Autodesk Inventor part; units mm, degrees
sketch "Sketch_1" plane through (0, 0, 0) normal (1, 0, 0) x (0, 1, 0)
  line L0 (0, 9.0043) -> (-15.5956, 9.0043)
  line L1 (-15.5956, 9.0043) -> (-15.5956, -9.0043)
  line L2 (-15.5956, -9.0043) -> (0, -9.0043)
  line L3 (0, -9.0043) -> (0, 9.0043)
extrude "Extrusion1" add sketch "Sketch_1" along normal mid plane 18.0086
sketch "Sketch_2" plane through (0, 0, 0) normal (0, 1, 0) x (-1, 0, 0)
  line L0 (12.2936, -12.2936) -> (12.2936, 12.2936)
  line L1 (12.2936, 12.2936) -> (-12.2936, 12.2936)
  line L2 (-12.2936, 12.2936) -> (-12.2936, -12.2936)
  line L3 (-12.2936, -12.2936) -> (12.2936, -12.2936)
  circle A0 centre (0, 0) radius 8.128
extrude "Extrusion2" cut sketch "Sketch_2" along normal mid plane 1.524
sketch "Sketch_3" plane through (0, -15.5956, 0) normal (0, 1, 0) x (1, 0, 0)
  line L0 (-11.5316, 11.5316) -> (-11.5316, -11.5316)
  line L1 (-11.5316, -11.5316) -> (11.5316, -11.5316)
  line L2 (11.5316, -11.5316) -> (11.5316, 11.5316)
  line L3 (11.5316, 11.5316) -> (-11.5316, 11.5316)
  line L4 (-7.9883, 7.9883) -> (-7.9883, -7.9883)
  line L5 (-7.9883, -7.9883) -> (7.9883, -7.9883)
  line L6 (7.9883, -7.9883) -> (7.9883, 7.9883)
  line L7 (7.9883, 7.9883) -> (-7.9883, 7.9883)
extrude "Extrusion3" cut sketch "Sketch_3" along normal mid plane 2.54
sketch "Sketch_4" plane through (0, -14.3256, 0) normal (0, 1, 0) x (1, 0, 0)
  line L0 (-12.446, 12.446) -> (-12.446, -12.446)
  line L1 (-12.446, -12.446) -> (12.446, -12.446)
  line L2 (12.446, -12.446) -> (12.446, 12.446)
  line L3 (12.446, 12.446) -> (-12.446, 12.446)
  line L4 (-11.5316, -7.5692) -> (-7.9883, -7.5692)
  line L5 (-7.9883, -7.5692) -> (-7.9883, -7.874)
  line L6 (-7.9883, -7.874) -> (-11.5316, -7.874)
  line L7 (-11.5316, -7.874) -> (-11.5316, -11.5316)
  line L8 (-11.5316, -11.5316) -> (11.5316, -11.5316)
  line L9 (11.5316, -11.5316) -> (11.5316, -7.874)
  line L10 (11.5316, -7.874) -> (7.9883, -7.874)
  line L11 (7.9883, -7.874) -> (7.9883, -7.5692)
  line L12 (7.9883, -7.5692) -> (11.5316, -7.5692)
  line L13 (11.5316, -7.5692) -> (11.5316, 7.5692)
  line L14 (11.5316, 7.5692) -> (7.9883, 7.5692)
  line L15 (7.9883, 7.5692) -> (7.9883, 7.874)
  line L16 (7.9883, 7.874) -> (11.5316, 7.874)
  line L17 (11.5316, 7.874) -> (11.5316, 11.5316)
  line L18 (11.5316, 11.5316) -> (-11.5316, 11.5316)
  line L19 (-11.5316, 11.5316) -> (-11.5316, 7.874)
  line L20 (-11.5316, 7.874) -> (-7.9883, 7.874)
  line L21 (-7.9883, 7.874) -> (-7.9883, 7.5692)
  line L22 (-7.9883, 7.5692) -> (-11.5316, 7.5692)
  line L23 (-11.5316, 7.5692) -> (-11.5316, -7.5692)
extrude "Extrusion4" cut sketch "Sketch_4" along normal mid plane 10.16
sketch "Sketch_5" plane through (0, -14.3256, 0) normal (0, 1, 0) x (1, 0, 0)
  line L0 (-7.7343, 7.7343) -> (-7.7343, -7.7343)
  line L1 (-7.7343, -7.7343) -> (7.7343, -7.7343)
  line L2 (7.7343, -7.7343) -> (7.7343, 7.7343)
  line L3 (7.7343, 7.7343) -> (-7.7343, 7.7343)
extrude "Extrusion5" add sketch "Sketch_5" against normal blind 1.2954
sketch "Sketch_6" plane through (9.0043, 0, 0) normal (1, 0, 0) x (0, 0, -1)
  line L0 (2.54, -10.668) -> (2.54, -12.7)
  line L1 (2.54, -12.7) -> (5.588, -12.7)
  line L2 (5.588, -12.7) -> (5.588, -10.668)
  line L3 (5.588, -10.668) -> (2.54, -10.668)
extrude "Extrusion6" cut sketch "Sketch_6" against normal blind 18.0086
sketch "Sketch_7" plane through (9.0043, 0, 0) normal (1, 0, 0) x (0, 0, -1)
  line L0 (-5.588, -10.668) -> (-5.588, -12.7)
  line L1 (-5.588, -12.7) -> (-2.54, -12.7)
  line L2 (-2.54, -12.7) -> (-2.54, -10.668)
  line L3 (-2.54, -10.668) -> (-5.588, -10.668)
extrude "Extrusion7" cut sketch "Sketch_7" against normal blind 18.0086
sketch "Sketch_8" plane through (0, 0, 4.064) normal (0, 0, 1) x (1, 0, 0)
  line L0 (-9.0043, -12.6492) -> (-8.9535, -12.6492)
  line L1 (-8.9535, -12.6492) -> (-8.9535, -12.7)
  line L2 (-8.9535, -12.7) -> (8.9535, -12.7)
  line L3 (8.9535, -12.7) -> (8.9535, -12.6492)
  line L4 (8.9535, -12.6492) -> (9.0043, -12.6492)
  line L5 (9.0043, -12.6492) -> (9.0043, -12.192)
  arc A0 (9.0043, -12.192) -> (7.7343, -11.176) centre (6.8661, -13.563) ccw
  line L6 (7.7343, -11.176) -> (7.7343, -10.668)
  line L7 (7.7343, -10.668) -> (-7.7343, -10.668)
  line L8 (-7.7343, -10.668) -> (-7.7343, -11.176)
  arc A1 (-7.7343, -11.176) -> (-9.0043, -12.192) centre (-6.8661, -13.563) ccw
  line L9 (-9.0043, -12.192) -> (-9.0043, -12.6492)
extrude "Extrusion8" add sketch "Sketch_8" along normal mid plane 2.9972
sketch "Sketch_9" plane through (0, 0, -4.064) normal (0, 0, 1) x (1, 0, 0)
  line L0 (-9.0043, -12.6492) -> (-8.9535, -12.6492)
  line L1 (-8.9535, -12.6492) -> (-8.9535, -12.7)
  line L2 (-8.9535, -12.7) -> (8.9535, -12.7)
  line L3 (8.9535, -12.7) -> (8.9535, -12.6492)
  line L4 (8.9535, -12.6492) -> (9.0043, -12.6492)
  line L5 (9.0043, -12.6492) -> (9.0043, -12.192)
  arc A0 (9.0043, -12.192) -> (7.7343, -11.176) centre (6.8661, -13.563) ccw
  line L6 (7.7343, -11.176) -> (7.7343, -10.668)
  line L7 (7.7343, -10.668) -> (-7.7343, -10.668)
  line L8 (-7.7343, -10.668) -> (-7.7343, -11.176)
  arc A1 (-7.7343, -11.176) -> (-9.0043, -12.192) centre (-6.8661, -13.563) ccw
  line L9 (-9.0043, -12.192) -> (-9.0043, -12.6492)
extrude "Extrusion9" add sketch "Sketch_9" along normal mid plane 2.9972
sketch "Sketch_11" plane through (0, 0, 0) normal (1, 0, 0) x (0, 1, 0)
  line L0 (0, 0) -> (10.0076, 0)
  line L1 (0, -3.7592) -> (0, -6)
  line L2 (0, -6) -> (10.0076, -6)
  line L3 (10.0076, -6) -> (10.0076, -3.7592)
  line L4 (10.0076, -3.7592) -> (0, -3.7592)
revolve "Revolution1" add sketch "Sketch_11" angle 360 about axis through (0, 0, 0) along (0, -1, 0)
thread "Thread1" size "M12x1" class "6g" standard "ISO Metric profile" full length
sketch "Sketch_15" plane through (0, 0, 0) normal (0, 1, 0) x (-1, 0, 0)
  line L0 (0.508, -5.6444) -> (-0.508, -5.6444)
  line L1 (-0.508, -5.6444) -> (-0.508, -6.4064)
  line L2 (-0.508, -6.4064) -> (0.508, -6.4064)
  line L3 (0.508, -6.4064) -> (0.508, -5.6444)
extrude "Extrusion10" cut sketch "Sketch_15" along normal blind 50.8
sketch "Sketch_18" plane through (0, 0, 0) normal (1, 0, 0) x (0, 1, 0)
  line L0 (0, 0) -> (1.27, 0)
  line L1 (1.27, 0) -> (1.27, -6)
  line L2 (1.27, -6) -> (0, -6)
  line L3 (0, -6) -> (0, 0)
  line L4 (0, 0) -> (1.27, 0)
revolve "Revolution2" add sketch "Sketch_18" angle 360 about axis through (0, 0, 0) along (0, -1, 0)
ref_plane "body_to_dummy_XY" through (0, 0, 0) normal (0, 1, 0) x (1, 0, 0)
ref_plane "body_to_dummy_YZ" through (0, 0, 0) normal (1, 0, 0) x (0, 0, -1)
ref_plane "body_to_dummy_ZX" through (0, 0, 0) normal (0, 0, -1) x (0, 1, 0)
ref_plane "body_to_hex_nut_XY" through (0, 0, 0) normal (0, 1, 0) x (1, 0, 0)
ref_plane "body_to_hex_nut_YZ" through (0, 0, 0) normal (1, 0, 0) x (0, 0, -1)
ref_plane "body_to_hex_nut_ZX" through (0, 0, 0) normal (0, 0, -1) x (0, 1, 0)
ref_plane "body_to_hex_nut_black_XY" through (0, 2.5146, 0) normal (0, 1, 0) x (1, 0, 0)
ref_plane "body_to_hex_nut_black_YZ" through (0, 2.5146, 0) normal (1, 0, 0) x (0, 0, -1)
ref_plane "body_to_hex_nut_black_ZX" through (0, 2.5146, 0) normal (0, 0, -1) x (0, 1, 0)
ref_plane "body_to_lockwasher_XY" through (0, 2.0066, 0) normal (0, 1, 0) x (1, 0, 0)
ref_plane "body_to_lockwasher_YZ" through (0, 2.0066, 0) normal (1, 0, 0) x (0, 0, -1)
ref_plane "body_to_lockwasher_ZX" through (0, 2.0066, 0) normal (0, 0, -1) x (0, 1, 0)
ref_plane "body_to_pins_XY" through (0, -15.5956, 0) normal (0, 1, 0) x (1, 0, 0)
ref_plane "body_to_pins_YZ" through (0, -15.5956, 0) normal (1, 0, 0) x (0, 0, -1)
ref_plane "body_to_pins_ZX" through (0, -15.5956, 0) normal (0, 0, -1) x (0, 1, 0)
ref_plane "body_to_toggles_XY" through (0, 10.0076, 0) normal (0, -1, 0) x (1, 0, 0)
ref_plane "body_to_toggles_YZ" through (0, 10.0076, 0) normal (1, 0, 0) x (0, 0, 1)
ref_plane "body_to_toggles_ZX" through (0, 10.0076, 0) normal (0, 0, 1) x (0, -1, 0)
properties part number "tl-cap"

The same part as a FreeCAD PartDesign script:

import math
import FreeCAD as App
import Part
import Sketcher
from FreeCAD import Vector
Q = App.Units.Quantity


def add_polygon(sketch, points):
    """Adds a closed chain of lines whose ends are joined by coincident constraints."""
    first, n = sketch.GeometryCount, len(points)
    for a, b in zip(points, points[1:] + points[:1]):
        sketch.addGeometry(Part.LineSegment(App.Vector(*a, 0), App.Vector(*b, 0)), False)
    for i in range(n):
        sketch.addConstraint(Sketcher.Constraint("Coincident", first + i, 2, first + (i + 1) % n, 1))

doc = App.newDocument("Part")
body = doc.addObject("PartDesign::Body", "Body")

sketch1 = body.newObject("Sketcher::SketchObject", "Sketch")
sketch1.AttachmentSupport = (doc.getObject("YZ_Plane"), [""])
sketch1.MapMode = "FlatFace"
add_polygon(sketch1, [(0, -9), (0, 9), (-16, 9), (-16, -9)])
sketch1.addConstraint(Sketcher.Constraint("Vertical", 0))
sketch1.addConstraint(Sketcher.Constraint("Horizontal", 1))
sketch1.addConstraint(Sketcher.Constraint("Vertical", 2))
sketch1.addConstraint(Sketcher.Constraint("Horizontal", 3))
sketch1.addConstraint(Sketcher.Constraint("Symmetric", 0, 2, 3, 2, -1, 1))
sketch1.addConstraint(Sketcher.Constraint("DistanceX", 1, 2, 1, 1, Q("0.614 in")))
sketch1.addConstraint(Sketcher.Constraint("DistanceY", 0, 1, 0, 2, Q("0.709 in")))
pad1 = body.newObject("PartDesign::Pad", "Pad")
pad1.Profile = sketch1
pad1.Length = Q("0.709 in")
pad1.Midplane = True

sketch2 = body.newObject("Sketcher::SketchObject", "Sketch001")
sketch2.AttachmentSupport = (doc.getObject("XZ_Plane"), [""])
sketch2.MapMode = "FlatFace"
add_polygon(sketch2, [(12, -12), (-12, -12), (-12, 12), (12, 12)])
sketch2.addGeometry(Part.Circle(Vector(0, 0, 0), Vector(0, 0, 1), 8), False)
sketch2.addConstraint(Sketcher.Constraint("Horizontal", 0))
sketch2.addConstraint(Sketcher.Constraint("Vertical", 1))
sketch2.addConstraint(Sketcher.Constraint("Horizontal", 2))
sketch2.addConstraint(Sketcher.Constraint("Vertical", 3))
sketch2.addConstraint(Sketcher.Constraint("Coincident", 4, 3, -1, 1))
sketch2.addConstraint(Sketcher.Constraint("Symmetric", 0, 2, 2, 2, -1, 1))
sketch2.addConstraint(Sketcher.Constraint("Equal", 2, 1))
sketch2.addConstraint(Sketcher.Constraint("Diameter", 4, Q("0.64 in")))
sketch2.addConstraint(Sketcher.Constraint("DistanceX", 0, 2, 0, 1, Q("0.968 in")))
pocket1 = body.newObject("PartDesign::Pocket", "Pocket")
pocket1.Profile = sketch2
pocket1.Length = Q("0.06 in")
pocket1.Midplane = True

sketch3 = body.newObject("Sketcher::SketchObject", "Sketch002")
sketch3.AttachmentSupport = (doc.getObject("XZ_Plane"), [""])
sketch3.MapMode = "FlatFace"
sketch3.AttachmentOffset = App.Placement(Vector(0, 0, 0.614 * 25.4), App.Rotation())
add_polygon(sketch3, [(12, -12), (-12, -12), (-12, 12), (12, 12)])
add_polygon(sketch3, [(-8, 8), (-8, -8), (8, -8), (8, 8)])
sketch3.addConstraint(Sketcher.Constraint("Horizontal", 0))
sketch3.addConstraint(Sketcher.Constraint("Vertical", 1))
sketch3.addConstraint(Sketcher.Constraint("Horizontal", 2))
sketch3.addConstraint(Sketcher.Constraint("Vertical", 3))
sketch3.addConstraint(Sketcher.Constraint("Vertical", 4))
sketch3.addConstraint(Sketcher.Constraint("Horizontal", 5))
sketch3.addConstraint(Sketcher.Constraint("Vertical", 6))
sketch3.addConstraint(Sketcher.Constraint("Horizontal", 7))
sketch3.addConstraint(Sketcher.Constraint("Symmetric", 0, 2, 2, 2, -1, 1))
sketch3.addConstraint(Sketcher.Constraint("Symmetric", 4, 2, 6, 2, -1, 1))
sketch3.addConstraint(Sketcher.Constraint("Equal", 2, 1))
sketch3.addConstraint(Sketcher.Constraint("Equal", 7, 4))
sketch3.addConstraint(Sketcher.Constraint("DistanceX", 0, 2, 0, 1, Q("0.908 in")))
sketch3.addConstraint(Sketcher.Constraint("DistanceX", 5, 1, 5, 2, Q("0.629 in")))
pocket2 = body.newObject("PartDesign::Pocket", "Pocket001")
pocket2.Profile = sketch3
pocket2.Length = Q("0.1 in")
pocket2.Midplane = True

sketch4 = body.newObject("Sketcher::SketchObject", "Sketch003")
sketch4.AttachmentSupport = (doc.getObject("XZ_Plane"), [""])
sketch4.MapMode = "FlatFace"
sketch4.AttachmentOffset = App.Placement(Vector(0, 0, 0.564 * 25.4), App.Rotation())
add_polygon(sketch4, [(12.45, -12.45), (-12.45, -12.45), (-12.45, 12.45), (12.45, 12.45)])
add_polygon(sketch4, [(-7.99, 7.57), (-11.53, 7.57), (-11.53, -7.57), (-7.99, -7.57), (-7.99, -7.87), (-11.53, -7.87), (-11.53, -11.53), (11.53, -11.53), (11.53, -7.87), (7.99, -7.87), (7.99, -7.57), (11.53, -7.57), (11.53, 7.57), (7.99, 7.57), (7.99, 7.87), (11.53, 7.87), (11.53, 11.53), (-11.53, 11.53), (-11.53, 7.87), (-7.99, 7.87)])
sketch4.addConstraint(Sketcher.Constraint("Horizontal", 0))
sketch4.addConstraint(Sketcher.Constraint("Vertical", 1))
sketch4.addConstraint(Sketcher.Constraint("Horizontal", 2))
sketch4.addConstraint(Sketcher.Constraint("Vertical", 3))
sketch4.addConstraint(Sketcher.Constraint("Horizontal", 4))
sketch4.addConstraint(Sketcher.Constraint("Vertical", 5))
sketch4.addConstraint(Sketcher.Constraint("Horizontal", 6))
sketch4.addConstraint(Sketcher.Constraint("Vertical", 7))
sketch4.addConstraint(Sketcher.Constraint("Horizontal", 8))
sketch4.addConstraint(Sketcher.Constraint("Vertical", 9))
sketch4.addConstraint(Sketcher.Constraint("Horizontal", 10))
sketch4.addConstraint(Sketcher.Constraint("Vertical", 11))
sketch4.addConstraint(Sketcher.Constraint("Horizontal", 12))
sketch4.addConstraint(Sketcher.Constraint("Vertical", 13))
sketch4.addConstraint(Sketcher.Constraint("Horizontal", 14))
sketch4.addConstraint(Sketcher.Constraint("Vertical", 15))
sketch4.addConstraint(Sketcher.Constraint("Horizontal", 16))
sketch4.addConstraint(Sketcher.Constraint("Vertical", 17))
sketch4.addConstraint(Sketcher.Constraint("Horizontal", 18))
sketch4.addConstraint(Sketcher.Constraint("Vertical", 19))
sketch4.addConstraint(Sketcher.Constraint("Horizontal", 20))
sketch4.addConstraint(Sketcher.Constraint("Vertical", 21))
sketch4.addConstraint(Sketcher.Constraint("Horizontal", 22))
sketch4.addConstraint(Sketcher.Constraint("Vertical", 23))
sketch4.addConstraint(Sketcher.Constraint("Symmetric", 0, 2, 2, 2, -1, 1))
sketch4.addConstraint(Sketcher.Constraint("Symmetric", 4, 2, 14, 2, -1, 1))
sketch4.addConstraint(Sketcher.Constraint("Symmetric", 6, 2, 16, 2, -1, 1))
sketch4.addConstraint(Sketcher.Constraint("Symmetric", 8, 2, 18, 2, -1, 1))
sketch4.addConstraint(Sketcher.Constraint("Symmetric", 10, 2, 20, 2, -1, 1))
sketch4.addConstraint(Sketcher.Constraint("Symmetric", 12, 2, 22, 2, -1, 1))
sketch4.addConstraint(Sketcher.Constraint("Symmetric", 8, 2, 11, 2, -2))
sketch4.addConstraint(Sketcher.Constraint("Symmetric", 6, 2, 13, 2, -2))
sketch4.addConstraint(Sketcher.Constraint("Vertical", 5, 2, 8, 2))
sketch4.addConstraint(Sketcher.Constraint("Equal", 2, 1))
sketch4.addConstraint(Sketcher.Constraint("DistanceX", 0, 2, 0, 1, Q("0.98 in")))
sketch4.addConstraint(Sketcher.Constraint("DistanceY", 7, 2, 1, 2, Q("0.8 in")))
sketch4.addConstraint(Sketcher.Constraint("DistanceX", 10, 1, 10, 2, Q("0.908 in")))
sketch4.addConstraint(Sketcher.Constraint("DistanceY", 5, 2, 5, 1, Q("0.596 in")))
sketch4.addConstraint(Sketcher.Constraint("DistanceY", 9, 2, 9, 1, Q("0.144 in")))
sketch4.addConstraint(Sketcher.Constraint("DistanceX", 4, 2, 4, 1, Q("0.1395 in")))
pocket3 = body.newObject("PartDesign::Pocket", "Pocket002")
pocket3.Profile = sketch4
pocket3.Length = Q("0.4 in")
pocket3.Midplane = True

sketch5 = body.newObject("Sketcher::SketchObject", "Sketch004")
sketch5.AttachmentSupport = (doc.getObject("XZ_Plane"), [""])
sketch5.MapMode = "FlatFace"
sketch5.AttachmentOffset = App.Placement(Vector(0, 0, 0.564 * 25.4), App.Rotation())
add_polygon(sketch5, [(8, -8), (-8, -8), (-8, 8), (8, 8)])
sketch5.addConstraint(Sketcher.Constraint("Horizontal", 0))
sketch5.addConstraint(Sketcher.Constraint("Vertical", 1))
sketch5.addConstraint(Sketcher.Constraint("Horizontal", 2))
sketch5.addConstraint(Sketcher.Constraint("Vertical", 3))
sketch5.addConstraint(Sketcher.Constraint("Symmetric", 0, 2, 2, 2, -1, 1))
sketch5.addConstraint(Sketcher.Constraint("Equal", 2, 1))
sketch5.addConstraint(Sketcher.Constraint("DistanceX", 0, 2, 0, 1, Q("0.609 in")))
pad2 = body.newObject("PartDesign::Pad", "Pad001")
pad2.Profile = sketch5
pad2.Length = Q("0.051 in")

sketch6 = body.newObject("Sketcher::SketchObject", "Sketch005")
sketch6.AttachmentSupport = (doc.getObject("YZ_Plane"), [""])
sketch6.MapMode = "FlatFace"
sketch6.AttachmentOffset = App.Placement(Vector(0, 0, 0.3545 * 25.4), App.Rotation())
add_polygon(sketch6, [(-10.7, -5.6), (-10.7, -2.5), (-12.7, -2.5), (-12.7, -5.6)])
sketch6.addConstraint(Sketcher.Constraint("Vertical", 0))
sketch6.addConstraint(Sketcher.Constraint("Horizontal", 1))
sketch6.addConstraint(Sketcher.Constraint("Vertical", 2))
sketch6.addConstraint(Sketcher.Constraint("Horizontal", 3))
sketch6.addConstraint(Sketcher.Constraint("DistanceX", 1, 2, 1, 1, Q("0.08 in")))
sketch6.addConstraint(Sketcher.Constraint("DistanceY", 0, 1, 0, 2, Q("0.12 in")))
sketch6.addConstraint(Sketcher.Constraint("DistanceY", 0, 2, -1, 1, Q("0.1 in")))
sketch6.addConstraint(Sketcher.Constraint("DistanceX", 1, 2, -1, 1, Q("0.5 in")))
pocket4 = body.newObject("PartDesign::Pocket", "Pocket003")
pocket4.Profile = sketch6
pocket4.Length = Q("0.709 in")

sketch7 = body.newObject("Sketcher::SketchObject", "Sketch006")
sketch7.AttachmentSupport = (doc.getObject("YZ_Plane"), [""])
sketch7.MapMode = "FlatFace"
sketch7.AttachmentOffset = App.Placement(Vector(0, 0, 0.3545 * 25.4), App.Rotation())
add_polygon(sketch7, [(-10.7, 2.5), (-10.7, 5.6), (-12.7, 5.6), (-12.7, 2.5)])
sketch7.addConstraint(Sketcher.Constraint("Vertical", 0))
sketch7.addConstraint(Sketcher.Constraint("Horizontal", 1))
sketch7.addConstraint(Sketcher.Constraint("Vertical", 2))
sketch7.addConstraint(Sketcher.Constraint("Horizontal", 3))
sketch7.addConstraint(Sketcher.Constraint("DistanceX", 1, 2, 1, 1, Q("0.08 in")))
sketch7.addConstraint(Sketcher.Constraint("DistanceY", 0, 1, 0, 2, Q("0.12 in")))
sketch7.addConstraint(Sketcher.Constraint("DistanceX", 1, 2, -1, 1, Q("0.5 in")))
sketch7.addConstraint(Sketcher.Constraint("DistanceY", -1, 1, 2, 2, Q("0.1 in")))
pocket5 = body.newObject("PartDesign::Pocket", "Pocket004")
pocket5.Profile = sketch7
pocket5.Length = Q("0.709 in")

sketch8 = body.newObject("Sketcher::SketchObject", "Sketch007")
sketch8.AttachmentSupport = (doc.getObject("XY_Plane"), [""])
sketch8.MapMode = "FlatFace"
sketch8.AttachmentOffset = App.Placement(Vector(0, 0, 0.16 * 25.4), App.Rotation())
sketch8.addGeometry(Part.LineSegment(Vector(-9, -12.19, 0), Vector(-9, -12.65, 0)), False)
sketch8.addGeometry(Part.LineSegment(Vector(-9, -12.65, 0), Vector(-8.95, -12.65, 0)), False)
sketch8.addGeometry(Part.LineSegment(Vector(-8.95, -12.65, 0), Vector(-8.95, -12.7, 0)), False)
sketch8.addGeometry(Part.LineSegment(Vector(-8.95, -12.7, 0), Vector(8.95, -12.7, 0)), False)
sketch8.addGeometry(Part.LineSegment(Vector(8.95, -12.7, 0), Vector(8.95, -12.65, 0)), False)
sketch8.addGeometry(Part.LineSegment(Vector(8.95, -12.65, 0), Vector(9, -12.65, 0)), False)
sketch8.addGeometry(Part.LineSegment(Vector(9, -12.65, 0), Vector(9, -12.19, 0)), False)
sketch8.addGeometry(Part.ArcOfCircle(Part.Circle(Vector(6.87, -13.56, 0), Vector(0, 0, 1), 2.54), math.radians(33), math.radians(70)), False)
sketch8.addGeometry(Part.LineSegment(Vector(7.73, -11.18, 0), Vector(7.73, -10.67, 0)), False)
sketch8.addGeometry(Part.LineSegment(Vector(7.73, -10.67, 0), Vector(-7.73, -10.67, 0)), False)
sketch8.addGeometry(Part.LineSegment(Vector(-7.73, -10.67, 0), Vector(-7.73, -11.18, 0)), False)
sketch8.addGeometry(Part.ArcOfCircle(Part.Circle(Vector(-6.87, -13.56, 0), Vector(0, 0, 1), 2.54), math.radians(110), math.radians(147)), False)
sketch8.addConstraint(Sketcher.Constraint("Coincident", 0, 2, 1, 1))
sketch8.addConstraint(Sketcher.Constraint("Coincident", 1, 2, 2, 1))
sketch8.addConstraint(Sketcher.Constraint("Coincident", 2, 2, 3, 1))
sketch8.addConstraint(Sketcher.Constraint("Coincident", 3, 2, 4, 1))
sketch8.addConstraint(Sketcher.Constraint("Coincident", 4, 2, 5, 1))
sketch8.addConstraint(Sketcher.Constraint("Coincident", 5, 2, 6, 1))
sketch8.addConstraint(Sketcher.Constraint("Coincident", 6, 2, 7, 1))
sketch8.addConstraint(Sketcher.Constraint("Coincident", 7, 2, 8, 1))
sketch8.addConstraint(Sketcher.Constraint("Coincident", 8, 2, 9, 1))
sketch8.addConstraint(Sketcher.Constraint("Coincident", 9, 2, 10, 1))
sketch8.addConstraint(Sketcher.Constraint("Coincident", 10, 2, 11, 1))
sketch8.addConstraint(Sketcher.Constraint("Coincident", 11, 2, 0, 1))
sketch8.addConstraint(Sketcher.Constraint("Vertical", 0))
sketch8.addConstraint(Sketcher.Constraint("Horizontal", 1))
sketch8.addConstraint(Sketcher.Constraint("Vertical", 2))
sketch8.addConstraint(Sketcher.Constraint("Horizontal", 3))
sketch8.addConstraint(Sketcher.Constraint("Vertical", 4))
sketch8.addConstraint(Sketcher.Constraint("Horizontal", 5))
sketch8.addConstraint(Sketcher.Constraint("Vertical", 6))
sketch8.addConstraint(Sketcher.Constraint("Vertical", 8))
sketch8.addConstraint(Sketcher.Constraint("Horizontal", 9))
sketch8.addConstraint(Sketcher.Constraint("Vertical", 10))
sketch8.addConstraint(Sketcher.Constraint("Equal", 7, 11))
sketch8.addConstraint(Sketcher.Constraint("Symmetric", 7, 3, 11, 3, -2))
sketch8.addConstraint(Sketcher.Constraint("Symmetric", 1, 2, 4, 2, -2))
sketch8.addConstraint(Sketcher.Constraint("Horizontal", 7, 2, 10, 2))
sketch8.addConstraint(Sketcher.Constraint("Horizontal", 6, 2, 11, 2))
sketch8.addConstraint(Sketcher.Constraint("Equal", 5, 2))
sketch8.addConstraint(Sketcher.Constraint("Radius", 7, Q("0.1 in")))
sketch8.addConstraint(Sketcher.Constraint("DistanceY", 8, 1, 8, 2, Q("0.02 in")))
sketch8.addConstraint(Sketcher.Constraint("DistanceY", 2, 2, -1, 1, Q("0.5 in")))
sketch8.addConstraint(Sketcher.Constraint("DistanceX", 1, 1, 1, 2, Q("0.002 in")))
sketch8.addConstraint(Sketcher.Constraint("DistanceX", 3, 1, 3, 2, Q("0.705 in")))
sketch8.addConstraint(Sketcher.Constraint("DistanceX", 9, 2, 9, 1, Q("0.609 in")))
sketch8.addConstraint(Sketcher.Constraint("DistanceY", 0, 2, 0, 1, Q("0.018 in")))
sketch8.addConstraint(Sketcher.Constraint("DistanceY", 7, 2, -1, 1, Q("0.44 in")))
pad3 = body.newObject("PartDesign::Pad", "Pad002")
pad3.Profile = sketch8
pad3.Length = Q("0.118 in")
pad3.Midplane = True

sketch9 = body.newObject("Sketcher::SketchObject", "Sketch008")
sketch9.AttachmentSupport = (doc.getObject("XY_Plane"), [""])
sketch9.MapMode = "FlatFace"
sketch9.AttachmentOffset = App.Placement(Vector(0, 0, -0.16 * 25.4), App.Rotation())
sketch9.addGeometry(Part.LineSegment(Vector(-9, -12.19, 0), Vector(-9, -12.65, 0)), False)
sketch9.addGeometry(Part.LineSegment(Vector(-9, -12.65, 0), Vector(-8.95, -12.65, 0)), False)
sketch9.addGeometry(Part.LineSegment(Vector(-8.95, -12.65, 0), Vector(-8.95, -12.7, 0)), False)
sketch9.addGeometry(Part.LineSegment(Vector(-8.95, -12.7, 0), Vector(8.95, -12.7, 0)), False)
sketch9.addGeometry(Part.LineSegment(Vector(8.95, -12.7, 0), Vector(8.95, -12.65, 0)), False)
sketch9.addGeometry(Part.LineSegment(Vector(8.95, -12.65, 0), Vector(9, -12.65, 0)), False)
sketch9.addGeometry(Part.LineSegment(Vector(9, -12.65, 0), Vector(9, -12.19, 0)), False)
sketch9.addGeometry(Part.ArcOfCircle(Part.Circle(Vector(6.87, -13.56, 0), Vector(0, 0, 1), 2.54), math.radians(33), math.radians(70)), False)
sketch9.addGeometry(Part.LineSegment(Vector(7.73, -11.18, 0), Vector(7.73, -10.67, 0)), False)
sketch9.addGeometry(Part.LineSegment(Vector(7.73, -10.67, 0), Vector(-7.73, -10.67, 0)), False)
sketch9.addGeometry(Part.LineSegment(Vector(-7.73, -10.67, 0), Vector(-7.73, -11.18, 0)), False)
sketch9.addGeometry(Part.ArcOfCircle(Part.Circle(Vector(-6.87, -13.56, 0), Vector(0, 0, 1), 2.54), math.radians(110), math.radians(147)), False)
sketch9.addConstraint(Sketcher.Constraint("Coincident", 0, 2, 1, 1))
sketch9.addConstraint(Sketcher.Constraint("Coincident", 1, 2, 2, 1))
sketch9.addConstraint(Sketcher.Constraint("Coincident", 2, 2, 3, 1))
sketch9.addConstraint(Sketcher.Constraint("Coincident", 3, 2, 4, 1))
sketch9.addConstraint(Sketcher.Constraint("Coincident", 4, 2, 5, 1))
sketch9.addConstraint(Sketcher.Constraint("Coincident", 5, 2, 6, 1))
sketch9.addConstraint(Sketcher.Constraint("Coincident", 6, 2, 7, 1))
sketch9.addConstraint(Sketcher.Constraint("Coincident", 7, 2, 8, 1))
sketch9.addConstraint(Sketcher.Constraint("Coincident", 8, 2, 9, 1))
sketch9.addConstraint(Sketcher.Constraint("Coincident", 9, 2, 10, 1))
sketch9.addConstraint(Sketcher.Constraint("Coincident", 10, 2, 11, 1))
sketch9.addConstraint(Sketcher.Constraint("Coincident", 11, 2, 0, 1))
sketch9.addConstraint(Sketcher.Constraint("Vertical", 0))
sketch9.addConstraint(Sketcher.Constraint("Horizontal", 1))
sketch9.addConstraint(Sketcher.Constraint("Vertical", 2))
sketch9.addConstraint(Sketcher.Constraint("Horizontal", 3))
sketch9.addConstraint(Sketcher.Constraint("Vertical", 4))
sketch9.addConstraint(Sketcher.Constraint("Horizontal", 5))
sketch9.addConstraint(Sketcher.Constraint("Vertical", 6))
sketch9.addConstraint(Sketcher.Constraint("Vertical", 8))
sketch9.addConstraint(Sketcher.Constraint("Horizontal", 9))
sketch9.addConstraint(Sketcher.Constraint("Vertical", 10))
sketch9.addConstraint(Sketcher.Constraint("Equal", 7, 11))
sketch9.addConstraint(Sketcher.Constraint("Symmetric", 7, 3, 11, 3, -2))
sketch9.addConstraint(Sketcher.Constraint("Symmetric", 1, 2, 4, 2, -2))
sketch9.addConstraint(Sketcher.Constraint("Horizontal", 7, 2, 10, 2))
sketch9.addConstraint(Sketcher.Constraint("Horizontal", 6, 2, 11, 2))
sketch9.addConstraint(Sketcher.Constraint("Equal", 5, 2))
sketch9.addConstraint(Sketcher.Constraint("Radius", 7, Q("0.1 in")))
sketch9.addConstraint(Sketcher.Constraint("DistanceY", 8, 1, 8, 2, Q("0.02 in")))
sketch9.addConstraint(Sketcher.Constraint("DistanceY", 2, 2, -1, 1, Q("0.5 in")))
sketch9.addConstraint(Sketcher.Constraint("DistanceX", 1, 1, 1, 2, Q("0.002 in")))
sketch9.addConstraint(Sketcher.Constraint("DistanceX", 3, 1, 3, 2, Q("0.705 in")))
sketch9.addConstraint(Sketcher.Constraint("DistanceX", 9, 2, 9, 1, Q("0.609 in")))
sketch9.addConstraint(Sketcher.Constraint("DistanceY", 0, 2, 0, 1, Q("0.018 in")))
sketch9.addConstraint(Sketcher.Constraint("DistanceY", 7, 2, -1, 1, Q("0.44 in")))
pad4 = body.newObject("PartDesign::Pad", "Pad003")
pad4.Profile = sketch9
pad4.Length = Q("0.118 in")
pad4.Midplane = True

sketch10 = body.newObject("Sketcher::SketchObject", "Sketch009")
sketch10.AttachmentSupport = (doc.getObject("YZ_Plane"), [""])
sketch10.MapMode = "FlatFace"
add_polygon(sketch10, [(10, -3.8), (0, -3.8), (0, -6), (10, -6)])
sketch10.addConstraint(Sketcher.Constraint("Horizontal", 0))
sketch10.addConstraint(Sketcher.Constraint("Vertical", 1))
sketch10.addConstraint(Sketcher.Constraint("Horizontal", 2))
sketch10.addConstraint(Sketcher.Constraint("Vertical", 3))
sketch10.addConstraint(Sketcher.Constraint("PointOnObject", 0, 2, -2))
sketch10.addConstraint(Sketcher.Constraint("DistanceX", 0, 2, 0, 1, Q("0.394 in")))
sketch10.addConstraint(Sketcher.Constraint("DistanceY", 0, 2, -1, 1, Q("0.148 in")))
sketch10.addConstraint(Sketcher.Constraint("DistanceY", 1, 2, 1, 1, 2.2408))
revolution = body.newObject("PartDesign::Revolution", "Revolution")
revolution.Profile = sketch10
revolution.ReferenceAxis = (sketch10, ["H_Axis"])
revolution.Angle = 360

sketch11 = body.newObject("Sketcher::SketchObject", "Sketch010")
sketch11.AttachmentSupport = (doc.getObject("XZ_Plane"), [""])
sketch11.MapMode = "FlatFace"
add_polygon(sketch11, [(-0.5, -6.4), (-0.5, -5.6), (0.5, -5.6), (0.5, -6.4)])
sketch11.addConstraint(Sketcher.Constraint("Vertical", 0))
sketch11.addConstraint(Sketcher.Constraint("Horizontal", 1))
sketch11.addConstraint(Sketcher.Constraint("Vertical", 2))
sketch11.addConstraint(Sketcher.Constraint("Horizontal", 3))
sketch11.addConstraint(Sketcher.Constraint("DistanceX", 1, 1, 1, 2, Q("0.04 in")))
sketch11.addConstraint(Sketcher.Constraint("DistanceY", 0, 1, 0, 2, Q("0.03 in")))
sketch11.addConstraint(Sketcher.Constraint("DistanceX", 0, 2, -1, 1, Q("0.02 in")))
sketch11.addConstraint(Sketcher.Constraint("DistanceY", 0, 2, -1, 1, 5.6444))
pocket6 = body.newObject("PartDesign::Pocket", "Pocket005")
pocket6.Profile = sketch11
pocket6.Length = Q("2 in")

sketch12 = body.newObject("Sketcher::SketchObject", "Sketch011")
sketch12.AttachmentSupport = (doc.getObject("YZ_Plane"), [""])
sketch12.MapMode = "FlatFace"
add_polygon(sketch12, [(1.3, 0), (0, 0), (0, -6), (1.3, -6)])
sketch12.addConstraint(Sketcher.Constraint("Horizontal", 0))
sketch12.addConstraint(Sketcher.Constraint("Vertical", 1))
sketch12.addConstraint(Sketcher.Constraint("Horizontal", 2))
sketch12.addConstraint(Sketcher.Constraint("Vertical", 3))
sketch12.addConstraint(Sketcher.Constraint("Coincident", 0, 2, -1, 1))
sketch12.addConstraint(Sketcher.Constraint("DistanceX", 0, 2, 0, 1, Q("0.05 in")))
sketch12.addConstraint(Sketcher.Constraint("DistanceY", 1, 2, 1, 1, 6.0))
revolution2 = body.newObject("PartDesign::Revolution", "Revolution001")
revolution2.Profile = sketch12
revolution2.ReferenceAxis = (sketch12, ["H_Axis"])
revolution2.Angle = 360

doc.recompute()
